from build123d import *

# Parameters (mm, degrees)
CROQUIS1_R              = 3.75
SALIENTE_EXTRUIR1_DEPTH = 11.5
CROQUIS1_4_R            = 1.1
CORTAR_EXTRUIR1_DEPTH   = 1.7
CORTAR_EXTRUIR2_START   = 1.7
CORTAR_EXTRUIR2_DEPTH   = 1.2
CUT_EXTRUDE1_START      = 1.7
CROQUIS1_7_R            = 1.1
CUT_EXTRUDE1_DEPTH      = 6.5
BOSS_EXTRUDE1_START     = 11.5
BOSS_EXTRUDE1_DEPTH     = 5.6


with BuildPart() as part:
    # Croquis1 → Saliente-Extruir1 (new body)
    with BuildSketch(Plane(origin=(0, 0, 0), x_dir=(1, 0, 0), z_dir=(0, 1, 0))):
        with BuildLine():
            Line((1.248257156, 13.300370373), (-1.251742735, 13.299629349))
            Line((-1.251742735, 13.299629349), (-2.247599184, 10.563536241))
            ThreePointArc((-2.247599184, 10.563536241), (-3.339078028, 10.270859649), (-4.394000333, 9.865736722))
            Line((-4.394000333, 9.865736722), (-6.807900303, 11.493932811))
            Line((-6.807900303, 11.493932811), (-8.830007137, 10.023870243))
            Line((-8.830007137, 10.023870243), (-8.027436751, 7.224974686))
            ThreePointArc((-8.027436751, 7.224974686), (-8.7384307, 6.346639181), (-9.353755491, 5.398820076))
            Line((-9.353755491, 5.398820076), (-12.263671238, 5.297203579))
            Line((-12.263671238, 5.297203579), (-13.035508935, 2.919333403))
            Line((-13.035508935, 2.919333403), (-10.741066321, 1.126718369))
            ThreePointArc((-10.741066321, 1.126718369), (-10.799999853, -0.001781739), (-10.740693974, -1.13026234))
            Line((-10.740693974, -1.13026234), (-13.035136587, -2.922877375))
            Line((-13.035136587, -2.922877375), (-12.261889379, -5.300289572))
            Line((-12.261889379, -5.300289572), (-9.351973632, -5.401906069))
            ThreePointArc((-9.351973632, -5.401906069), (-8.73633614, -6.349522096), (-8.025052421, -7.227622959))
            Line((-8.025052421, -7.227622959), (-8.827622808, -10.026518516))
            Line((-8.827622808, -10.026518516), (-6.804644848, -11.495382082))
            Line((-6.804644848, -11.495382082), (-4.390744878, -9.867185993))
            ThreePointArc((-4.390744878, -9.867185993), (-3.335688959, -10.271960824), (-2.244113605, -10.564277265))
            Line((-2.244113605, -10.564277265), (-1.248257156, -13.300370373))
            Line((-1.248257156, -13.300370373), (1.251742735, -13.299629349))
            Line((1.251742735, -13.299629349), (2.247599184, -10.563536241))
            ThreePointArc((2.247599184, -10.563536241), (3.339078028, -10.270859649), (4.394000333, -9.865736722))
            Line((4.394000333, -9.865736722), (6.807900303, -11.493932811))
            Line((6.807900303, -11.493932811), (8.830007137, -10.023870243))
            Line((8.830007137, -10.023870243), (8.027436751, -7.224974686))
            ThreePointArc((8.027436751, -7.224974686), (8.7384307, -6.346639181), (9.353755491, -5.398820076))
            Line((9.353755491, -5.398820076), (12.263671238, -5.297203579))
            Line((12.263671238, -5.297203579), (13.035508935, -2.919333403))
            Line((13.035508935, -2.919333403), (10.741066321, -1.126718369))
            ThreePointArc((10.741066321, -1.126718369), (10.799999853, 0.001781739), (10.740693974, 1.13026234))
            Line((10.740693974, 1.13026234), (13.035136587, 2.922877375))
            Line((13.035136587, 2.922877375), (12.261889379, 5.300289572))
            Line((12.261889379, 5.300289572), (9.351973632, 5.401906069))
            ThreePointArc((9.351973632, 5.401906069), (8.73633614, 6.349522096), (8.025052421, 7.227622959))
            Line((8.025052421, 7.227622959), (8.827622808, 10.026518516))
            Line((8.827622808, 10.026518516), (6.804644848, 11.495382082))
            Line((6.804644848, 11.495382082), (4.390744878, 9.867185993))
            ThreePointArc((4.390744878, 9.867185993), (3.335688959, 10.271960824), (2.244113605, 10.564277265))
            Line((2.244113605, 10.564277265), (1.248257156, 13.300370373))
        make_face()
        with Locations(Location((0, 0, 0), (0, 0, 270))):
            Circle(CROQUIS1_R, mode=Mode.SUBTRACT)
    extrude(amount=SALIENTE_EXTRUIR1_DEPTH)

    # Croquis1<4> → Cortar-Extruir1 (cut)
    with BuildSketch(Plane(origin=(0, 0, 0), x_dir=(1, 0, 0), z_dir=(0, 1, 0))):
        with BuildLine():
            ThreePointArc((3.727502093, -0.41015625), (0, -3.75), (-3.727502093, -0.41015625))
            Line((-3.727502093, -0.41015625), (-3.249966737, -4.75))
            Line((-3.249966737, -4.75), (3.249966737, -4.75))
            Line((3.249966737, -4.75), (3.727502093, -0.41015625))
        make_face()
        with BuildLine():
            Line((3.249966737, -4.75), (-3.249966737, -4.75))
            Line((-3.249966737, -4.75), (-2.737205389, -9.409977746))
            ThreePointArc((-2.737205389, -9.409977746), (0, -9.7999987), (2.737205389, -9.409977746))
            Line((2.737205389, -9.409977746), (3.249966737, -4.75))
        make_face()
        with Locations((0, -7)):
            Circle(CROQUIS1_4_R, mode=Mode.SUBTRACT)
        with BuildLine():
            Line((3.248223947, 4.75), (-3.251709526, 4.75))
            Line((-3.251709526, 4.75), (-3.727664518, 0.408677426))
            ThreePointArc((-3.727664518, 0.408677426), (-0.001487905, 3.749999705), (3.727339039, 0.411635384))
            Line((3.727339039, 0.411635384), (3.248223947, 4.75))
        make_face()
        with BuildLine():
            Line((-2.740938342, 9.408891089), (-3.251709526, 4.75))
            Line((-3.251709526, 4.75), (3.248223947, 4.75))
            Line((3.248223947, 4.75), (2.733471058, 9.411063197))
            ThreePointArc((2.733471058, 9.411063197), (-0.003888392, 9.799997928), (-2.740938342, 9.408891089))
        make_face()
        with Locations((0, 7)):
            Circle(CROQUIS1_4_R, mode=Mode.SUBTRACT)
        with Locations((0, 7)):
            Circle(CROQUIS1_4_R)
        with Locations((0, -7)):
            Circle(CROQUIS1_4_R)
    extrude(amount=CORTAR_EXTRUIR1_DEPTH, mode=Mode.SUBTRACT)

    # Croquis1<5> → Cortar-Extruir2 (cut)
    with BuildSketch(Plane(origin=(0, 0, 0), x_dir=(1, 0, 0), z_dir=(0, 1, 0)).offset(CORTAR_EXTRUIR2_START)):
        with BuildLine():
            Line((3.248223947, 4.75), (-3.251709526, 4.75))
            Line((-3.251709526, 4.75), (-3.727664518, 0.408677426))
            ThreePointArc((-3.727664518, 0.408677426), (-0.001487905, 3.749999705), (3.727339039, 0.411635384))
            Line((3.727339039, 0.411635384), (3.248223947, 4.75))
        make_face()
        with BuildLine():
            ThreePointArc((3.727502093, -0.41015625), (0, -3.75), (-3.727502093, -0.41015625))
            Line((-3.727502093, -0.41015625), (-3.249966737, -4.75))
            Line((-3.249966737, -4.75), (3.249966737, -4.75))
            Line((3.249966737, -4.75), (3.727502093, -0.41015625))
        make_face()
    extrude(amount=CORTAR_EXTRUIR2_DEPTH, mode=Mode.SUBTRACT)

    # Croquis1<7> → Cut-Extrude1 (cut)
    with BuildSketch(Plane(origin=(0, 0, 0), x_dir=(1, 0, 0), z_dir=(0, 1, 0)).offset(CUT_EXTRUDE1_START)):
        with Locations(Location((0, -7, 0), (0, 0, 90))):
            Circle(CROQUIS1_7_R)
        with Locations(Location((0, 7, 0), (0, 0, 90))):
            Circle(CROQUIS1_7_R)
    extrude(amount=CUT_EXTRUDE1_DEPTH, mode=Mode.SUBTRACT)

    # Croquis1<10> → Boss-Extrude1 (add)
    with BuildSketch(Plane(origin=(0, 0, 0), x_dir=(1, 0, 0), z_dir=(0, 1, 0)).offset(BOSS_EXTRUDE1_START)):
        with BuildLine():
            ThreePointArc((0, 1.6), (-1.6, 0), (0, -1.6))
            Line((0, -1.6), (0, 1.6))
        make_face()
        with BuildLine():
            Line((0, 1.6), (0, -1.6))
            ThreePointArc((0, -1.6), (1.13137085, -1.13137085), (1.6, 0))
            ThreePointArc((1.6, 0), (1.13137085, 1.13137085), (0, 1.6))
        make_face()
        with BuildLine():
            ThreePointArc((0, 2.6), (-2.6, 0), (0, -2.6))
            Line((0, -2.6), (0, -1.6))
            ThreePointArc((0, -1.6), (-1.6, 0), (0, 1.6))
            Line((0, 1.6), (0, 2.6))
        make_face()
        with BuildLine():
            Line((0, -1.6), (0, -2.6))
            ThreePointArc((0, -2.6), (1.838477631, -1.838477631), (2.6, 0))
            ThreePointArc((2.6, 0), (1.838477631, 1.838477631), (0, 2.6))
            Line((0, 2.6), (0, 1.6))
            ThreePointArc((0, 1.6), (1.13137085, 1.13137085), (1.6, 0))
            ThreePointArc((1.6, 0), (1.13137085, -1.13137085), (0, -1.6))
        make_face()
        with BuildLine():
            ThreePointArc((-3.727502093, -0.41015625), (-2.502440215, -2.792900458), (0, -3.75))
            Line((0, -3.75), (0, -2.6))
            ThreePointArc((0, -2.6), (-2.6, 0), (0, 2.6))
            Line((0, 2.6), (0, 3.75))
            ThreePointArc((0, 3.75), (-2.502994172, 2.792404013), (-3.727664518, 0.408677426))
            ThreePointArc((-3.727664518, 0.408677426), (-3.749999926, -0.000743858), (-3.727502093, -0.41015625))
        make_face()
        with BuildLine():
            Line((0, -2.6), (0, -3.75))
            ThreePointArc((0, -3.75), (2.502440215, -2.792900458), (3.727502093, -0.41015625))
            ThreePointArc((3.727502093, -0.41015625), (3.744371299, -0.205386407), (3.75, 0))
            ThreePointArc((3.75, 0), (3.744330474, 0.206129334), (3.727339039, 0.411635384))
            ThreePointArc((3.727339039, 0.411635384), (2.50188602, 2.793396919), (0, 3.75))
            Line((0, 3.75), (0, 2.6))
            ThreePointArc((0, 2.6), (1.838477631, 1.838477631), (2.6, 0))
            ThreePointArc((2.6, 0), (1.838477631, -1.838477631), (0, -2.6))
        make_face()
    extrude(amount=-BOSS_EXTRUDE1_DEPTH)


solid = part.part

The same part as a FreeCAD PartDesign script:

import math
import FreeCAD as App
import Part
import Sketcher
from FreeCAD import Vector
Q = App.Units.Quantity

doc = App.newDocument("Part")
params = doc.addObject("Spreadsheet::Sheet", "Params")
for row, (alias, value) in enumerate([
    ("sketch1_diameter", "7.5 mm"),
    ("sketch1_radius", "10.8 mm"),
    ("sketch1_length", "2.5 mm"),
    ("pad1_length", "11.5 mm"),
    ("sketch2_radius", "9.799999 mm"),
    ("sketch2_radius2", "3.75 mm"),
    ("pocket1_length", "1.7 mm"),
    ("sketch3_radius", "3.75 mm"),
    ("pocket2_length", "1.2 mm"),
    ("sketch4_diameter", "2.2 mm"),
    ("pocket3_length", "6.5 mm"),
    ("sketch5_radius", "3.75 mm"),
    ("pad2_length", "5.6 mm"),
], start=1):
    params.set(f"A{row}", alias)
    params.set(f"B{row}", "=" + value)
    params.setAlias(f"B{row}", alias)

body = doc.addObject("PartDesign::Body", "Body")

# Sketch on XZ plane
sketch1 = body.newObject("Sketcher::SketchObject", "Sketch")
sketch1.AttachmentSupport = (doc.getObject("XZ_Plane"), [""])
sketch1.MapMode = "FlatFace"
sketch1.addGeometry([
    Part.LineSegment(Vector(1.248257, -13.30037, 0), Vector(-1.251743, -13.299629, 0)),  # 0
    Part.LineSegment(Vector(-1.251743, -13.299629, 0), Vector(-2.247599, -10.563536, 0)),  # 1
    Part.ArcOfCircle(Part.Circle(Vector(0, 0, 0), Vector(0, 0, 1), 10.8), math.radians(-114.007228), math.radians(-102.011677)),  # 2
    Part.LineSegment(Vector(-4.394, -9.865737, 0), Vector(-6.8079, -11.493933, 0)),  # 3
    Part.LineSegment(Vector(-6.8079, -11.493933, 0), Vector(-8.830007, -10.02387, 0)),  # 4
    Part.LineSegment(Vector(-8.830007, -10.02387, 0), Vector(-8.027437, -7.224975, 0)),  # 5
    Part.ArcOfCircle(Part.Circle(Vector(0, 0, 0), Vector(0, 0, 1), 10.8), math.radians(-150.007228), math.radians(-138.011677)),  # 6
    Part.LineSegment(Vector(-9.353755, -5.39882, 0), Vector(-12.263671, -5.297204, 0)),  # 7
    Part.LineSegment(Vector(-12.263671, -5.297204, 0), Vector(-13.035509, -2.919333, 0)),  # 8
    Part.LineSegment(Vector(-13.035509, -2.919333, 0), Vector(-10.741066, -1.126718, 0)),  # 9
    Part.ArcOfCircle(Part.Circle(Vector(0, 0, 0), Vector(0, 0, 1), 10.8), math.radians(173.992772), math.radians(185.988323)),  # 10
    Part.LineSegment(Vector(-10.740694, 1.130262, 0), Vector(-13.035137, 2.922877, 0)),  # 11
    Part.LineSegment(Vector(-13.035137, 2.922877, 0), Vector(-12.261889, 5.30029, 0)),  # 12
    Part.LineSegment(Vector(-12.261889, 5.30029, 0), Vector(-9.351974, 5.401906, 0)),  # 13
    Part.ArcOfCircle(Part.Circle(Vector(0, 0, 0), Vector(0, 0, 1), 10.8), math.radians(137.992772), math.radians(149.988323)),  # 14
    Part.LineSegment(Vector(-8.025052, 7.227623, 0), Vector(-8.827623, 10.026519, 0)),  # 15
    Part.LineSegment(Vector(-8.827623, 10.026519, 0), Vector(-6.804645, 11.495382, 0)),  # 16
    Part.LineSegment(Vector(-6.804645, 11.495382, 0), Vector(-4.390745, 9.867186, 0)),  # 17
    Part.ArcOfCircle(Part.Circle(Vector(0, 0, 0), Vector(0, 0, 1), 10.8), math.radians(101.992772), math.radians(113.988323)),  # 18
    Part.LineSegment(Vector(-2.244114, 10.564277, 0), Vector(-1.248257, 13.30037, 0)),  # 19
    Part.LineSegment(Vector(-1.248257, 13.30037, 0), Vector(1.251743, 13.299629, 0)),  # 20
    Part.LineSegment(Vector(1.251743, 13.299629, 0), Vector(2.247599, 10.563536, 0)),  # 21
    Part.ArcOfCircle(Part.Circle(Vector(0, 0, 0), Vector(0, 0, 1), 10.8), math.radians(65.992772), math.radians(77.988323)),  # 22
    Part.LineSegment(Vector(4.394, 9.865737, 0), Vector(6.8079, 11.493933, 0)),  # 23
    Part.LineSegment(Vector(6.8079, 11.493933, 0), Vector(8.830007, 10.02387, 0)),  # 24
    Part.LineSegment(Vector(8.830007, 10.02387, 0), Vector(8.027437, 7.224975, 0)),  # 25
    Part.ArcOfCircle(Part.Circle(Vector(0, 0, 0), Vector(0, 0, 1), 10.8), math.radians(29.992772), math.radians(41.988323)),  # 26
    Part.LineSegment(Vector(9.353755, 5.39882, 0), Vector(12.263671, 5.297204, 0)),  # 27
    Part.LineSegment(Vector(12.263671, 5.297204, 0), Vector(13.035509, 2.919333, 0)),  # 28
    Part.LineSegment(Vector(13.035509, 2.919333, 0), Vector(10.741066, 1.126718, 0)),  # 29
    Part.ArcOfCircle(Part.Circle(Vector(0, 0, 0), Vector(0, 0, 1), 10.8), math.radians(-6.007228), math.radians(5.988323)),  # 30
    Part.LineSegment(Vector(10.740694, -1.130262, 0), Vector(13.035137, -2.922877, 0)),  # 31
    Part.LineSegment(Vector(13.035137, -2.922877, 0), Vector(12.261889, -5.30029, 0)),  # 32
    Part.LineSegment(Vector(12.261889, -5.30029, 0), Vector(9.351974, -5.401906, 0)),  # 33
    Part.ArcOfCircle(Part.Circle(Vector(0, 0, 0), Vector(0, 0, 1), 10.8), math.radians(-42.007228), math.radians(-30.011677)),  # 34
    Part.LineSegment(Vector(8.025052, -7.227623, 0), Vector(8.827623, -10.026519, 0)),  # 35
    Part.LineSegment(Vector(8.827623, -10.026519, 0), Vector(6.804645, -11.495382, 0)),  # 36
    Part.LineSegment(Vector(6.804645, -11.495382, 0), Vector(4.390745, -9.867186, 0)),  # 37
    Part.ArcOfCircle(Part.Circle(Vector(0, 0, 0), Vector(0, 0, 1), 10.8), math.radians(-78.007228), math.radians(-66.011677)),  # 38
    Part.LineSegment(Vector(2.244114, -10.564277, 0), Vector(1.248257, -13.30037, 0)),  # 39
    Part.Circle(Vector(0, 0, 0), Vector(0, 0, 1), 3.75),  # 40
], False)
sketch1.addConstraint([
    Sketcher.Constraint("Coincident", 0, 2, 1, 1),
    Sketcher.Constraint("Coincident", 1, 2, 2, 2),
    Sketcher.Constraint("Coincident", 2, 1, 3, 1),
    Sketcher.Constraint("Coincident", 3, 2, 4, 1),
    Sketcher.Constraint("Coincident", 4, 2, 5, 1),
    Sketcher.Constraint("Coincident", 5, 2, 6, 2),
    Sketcher.Constraint("Coincident", 6, 1, 7, 1),
    Sketcher.Constraint("Coincident", 7, 2, 8, 1),
    Sketcher.Constraint("Coincident", 8, 2, 9, 1),
    Sketcher.Constraint("Coincident", 9, 2, 10, 2),
    Sketcher.Constraint("Coincident", 10, 1, 11, 1),
    Sketcher.Constraint("Coincident", 11, 2, 12, 1),
    Sketcher.Constraint("Coincident", 12, 2, 13, 1),
    Sketcher.Constraint("Coincident", 13, 2, 14, 2),
    Sketcher.Constraint("Coincident", 14, 1, 15, 1),
    Sketcher.Constraint("Coincident", 15, 2, 16, 1),
    Sketcher.Constraint("Coincident", 16, 2, 17, 1),
    Sketcher.Constraint("Coincident", 17, 2, 18, 2),
    Sketcher.Constraint("Coincident", 18, 1, 19, 1),
    Sketcher.Constraint("Coincident", 19, 2, 20, 1),
    Sketcher.Constraint("Coincident", 20, 2, 21, 1),
    Sketcher.Constraint("Coincident", 21, 2, 22, 2),
    Sketcher.Constraint("Coincident", 22, 1, 23, 1),
    Sketcher.Constraint("Coincident", 23, 2, 24, 1),
    Sketcher.Constraint("Coincident", 24, 2, 25, 1),
    Sketcher.Constraint("Coincident", 25, 2, 26, 2),
    Sketcher.Constraint("Coincident", 26, 1, 27, 1),
    Sketcher.Constraint("Coincident", 27, 2, 28, 1),
    Sketcher.Constraint("Coincident", 28, 2, 29, 1),
    Sketcher.Constraint("Coincident", 29, 2, 30, 2),
    Sketcher.Constraint("Coincident", 30, 1, 31, 1),
    Sketcher.Constraint("Coincident", 31, 2, 32, 1),
    Sketcher.Constraint("Coincident", 32, 2, 33, 1),
    Sketcher.Constraint("Coincident", 33, 2, 34, 2),
    Sketcher.Constraint("Coincident", 34, 1, 35, 1),
    Sketcher.Constraint("Coincident", 35, 2, 36, 1),
    Sketcher.Constraint("Coincident", 36, 2, 37, 1),
    Sketcher.Constraint("Coincident", 37, 2, 38, 2),
    Sketcher.Constraint("Coincident", 38, 1, 39, 1),
    Sketcher.Constraint("Coincident", 39, 2, 0, 1),
    Sketcher.Constraint("Coincident", 2, 3, -1, 1),
    Sketcher.Constraint("Coincident", 6, 3, -1, 1),
    Sketcher.Constraint("Coincident", 10, 3, -1, 1),
    Sketcher.Constraint("Coincident", 14, 3, -1, 1),
    Sketcher.Constraint("Coincident", 18, 3, -1, 1),
    Sketcher.Constraint("Coincident", 22, 3, -1, 1),
    Sketcher.Constraint("Coincident", 26, 3, -1, 1),
    Sketcher.Constraint("Coincident", 30, 3, -1, 1),
    Sketcher.Constraint("Coincident", 34, 3, -1, 1),
    Sketcher.Constraint("Coincident", 38, 3, -1, 1),
    Sketcher.Constraint("Coincident", 40, 3, -1, 1),
    Sketcher.Constraint("Equal", 2, 6),
    Sketcher.Constraint("Equal", 6, 10),
    Sketcher.Constraint("Equal", 10, 14),
    Sketcher.Constraint("Equal", 14, 18),
    Sketcher.Constraint("Equal", 18, 22),
    Sketcher.Constraint("Equal", 22, 26),
    Sketcher.Constraint("Equal", 26, 30),
    Sketcher.Constraint("Equal", 30, 34),
    Sketcher.Constraint("Equal", 34, 38),
    Sketcher.Constraint("Symmetric", 0, 2, 20, 2, -1, 1),
    Sketcher.Constraint("Symmetric", 3, 2, 23, 2, -1, 1),
    Sketcher.Constraint("Symmetric", 4, 2, 24, 2, -1, 1),
    Sketcher.Constraint("Symmetric", 7, 2, 27, 2, -1, 1),
    Sketcher.Constraint("Symmetric", 8, 2, 28, 2, -1, 1),
    Sketcher.Constraint("Symmetric", 11, 2, 31, 2, -1, 1),
    Sketcher.Constraint("Symmetric", 12, 2, 32, 2, -1, 1),
    Sketcher.Constraint("Symmetric", 15, 2, 35, 2, -1, 1),
    Sketcher.Constraint("Symmetric", 16, 2, 36, 2, -1, 1),
    Sketcher.Constraint("Symmetric", 19, 2, 39, 2, -1, 1),
    Sketcher.Constraint("Parallel", 1, 21),
    Sketcher.Constraint("Parallel", 3, 23),
    Sketcher.Constraint("Parallel", 5, 25),
    Sketcher.Constraint("Parallel", 7, 27),
    Sketcher.Constraint("Parallel", 9, 29),
    Sketcher.Constraint("Parallel", 11, 31),
    Sketcher.Constraint("Parallel", 13, 33),
    Sketcher.Constraint("Parallel", 15, 35),
    Sketcher.Constraint("Parallel", 17, 37),
    Sketcher.Constraint("Parallel", 19, 39),
    Sketcher.Constraint("Equal", 1, 3),
    Sketcher.Constraint("Equal", 0, 4),
    Sketcher.Constraint("Equal", 3, 5),
    Sketcher.Constraint("Equal", 5, 7),
    Sketcher.Constraint("Equal", 4, 8),
    Sketcher.Constraint("Equal", 7, 9),
    Sketcher.Constraint("Equal", 9, 11),
    Sketcher.Constraint("Equal", 8, 12),
    Sketcher.Constraint("Equal", 11, 13),
    Sketcher.Constraint("Equal", 13, 15),
    Sketcher.Constraint("Equal", 12, 16),
    Sketcher.Constraint("Equal", 15, 17),
    Sketcher.Constraint("Equal", 17, 19),
    Sketcher.Constraint("Diameter", 40, 7.5),
    Sketcher.Constraint("Radius", 2, 10.8),
    Sketcher.Constraint("Angle", 1, Q("110 deg")),
    Sketcher.Constraint("Angle", 3, Q("-146 deg")),
    Sketcher.Constraint("Angle", 5, Q("74 deg")),
    Sketcher.Constraint("Angle", 7, Q("178 deg")),
    Sketcher.Constraint("Angle", 9, Q("38 deg")),
    Sketcher.Constraint("Angle", 11, Q("142 deg")),
    Sketcher.Constraint("Angle", 13, Q("2 deg")),
    Sketcher.Constraint("Angle", 15, Q("106 deg")),
    Sketcher.Constraint("Angle", 17, Q("-34 deg")),
    Sketcher.Constraint("Angle", 19, Q("70 deg")),
    Sketcher.Constraint("Distance", 0, 2.5),
    Sketcher.Constraint("DistanceX", 2, 1, -1, 1, 4.394),
    Sketcher.Constraint("DistanceX", 1, 2, -1, 1, 2.247599),
    Sketcher.Constraint("DistanceX", 3, 2, -1, 1, 6.8079),
    Sketcher.Constraint("DistanceX", 8, 2, 4, 2, 4.205502),
    Sketcher.Constraint("DistanceX", 12, 2, -1, 1, 12.261889),
    Sketcher.Constraint("DistanceY", -1, 1, 15, 2, 10.026519),
])
sketch1.setExpression("Constraints[93]", "Params.sketch1_diameter")
sketch1.setExpression("Constraints[94]", "Params.sketch1_radius")
sketch1.setExpression("Constraints[105]", "Params.sketch1_length")
pad1 = body.newObject("PartDesign::Pad", "Pad")
pad1.Profile = sketch1
pad1.setExpression("Length", "Params.pad1_length")
pad1.Reversed = True

# Sketch on XZ plane
sketch2 = body.newObject("Sketcher::SketchObject", "Sketch001")
sketch2.AttachmentSupport = (doc.getObject("XZ_Plane"), [""])
sketch2.MapMode = "FlatFace"
sketch2.addGeometry([
    Part.ArcOfCircle(Part.Circle(Vector(0, 0, 0), Vector(0, 0, 1), 3.75), math.radians(6.279288), math.radians(173.720712)),  # 0
    Part.LineSegment(Vector(-3.727502, 0.410156, 0), Vector(-3.249967, 4.75, 0)),  # 1
    Part.LineSegment(Vector(-3.249967, 4.75, 0), Vector(-2.737205, 9.409978, 0)),  # 2
    Part.ArcOfCircle(Part.Circle(Vector(0, 0, 0), Vector(0, 0, 1), 9.799999), math.radians(73.781169), math.radians(106.218831)),  # 3
    Part.LineSegment(Vector(2.737205, 9.409978, 0), Vector(3.249967, 4.75, 0)),  # 4
    Part.LineSegment(Vector(3.249967, 4.75, 0), Vector(3.727502, 0.410156, 0)),  # 5
    Part.LineSegment(Vector(-3.25171, -4.75, 0), Vector(-3.727665, -0.408677, 0)),  # 6
    Part.ArcOfCircle(Part.Circle(Vector(0, 0, 0), Vector(0, 0, 1), 3.75), math.radians(-173.743442), math.radians(-6.302025)),  # 7
    Part.LineSegment(Vector(3.727339, -0.411635, 0), Vector(3.248224, -4.75, 0)),  # 8
    Part.LineSegment(Vector(3.248224, -4.75, 0), Vector(2.733471, -9.411063, 0)),  # 9
    Part.ArcOfCircle(Part.Circle(Vector(0, 0, 0), Vector(0, 0, 1), 9.799999), math.radians(-106.241562), math.radians(-73.803905)),  # 10
    Part.LineSegment(Vector(-2.740938, -9.408891, 0), Vector(-3.25171, -4.75, 0)),  # 11
], False)
sketch2.addConstraint([
    Sketcher.Constraint("Tangent", 0, 2, 1, 1),
    Sketcher.Constraint("Coincident", 1, 2, 2, 1),
    Sketcher.Constraint("Coincident", 2, 2, 3, 2),
    Sketcher.Constraint("Coincident", 3, 1, 4, 1),
    Sketcher.Constraint("Coincident", 4, 2, 5, 1),
    Sketcher.Constraint("Tangent", 5, 2, 0, 1),
    Sketcher.Constraint("Tangent", 6, 2, 7, 1),
    Sketcher.Constraint("Tangent", 7, 2, 8, 1),
    Sketcher.Constraint("Coincident", 8, 2, 9, 1),
    Sketcher.Constraint("Coincident", 9, 2, 10, 2),
    Sketcher.Constraint("Coincident", 10, 1, 11, 1),
    Sketcher.Constraint("Coincident", 11, 2, 6, 1),
    Sketcher.Constraint("Coincident", 0, 3, -1, 1),
    Sketcher.Constraint("Coincident", 3, 3, -1, 1),
    Sketcher.Constraint("Coincident", 7, 3, -1, 1),
    Sketcher.Constraint("Coincident", 10, 3, -1, 1),
    Sketcher.Constraint("Equal", 0, 7),
    Sketcher.Constraint("Equal", 3, 10),
    Sketcher.Constraint("Symmetric", 1, 2, 4, 2, -2),
    Sketcher.Constraint("Parallel", 1, 2),
    Sketcher.Constraint("Parallel", 4, 5),
    Sketcher.Constraint("Parallel", 8, 9),
    Sketcher.Constraint("Parallel", 6, 11),
    Sketcher.Constraint("Horizontal", 8, 2, 11, 2),
    Sketcher.Constraint("Radius", 3, 9.799999),
    Sketcher.Constraint("Radius", 0, 3.75),
    Sketcher.Constraint("DistanceY", -1, 1, 1, 2, 4.75),
    Sketcher.Constraint("DistanceY", 8, 2, -1, 1, 4.75),
    Sketcher.Constraint("Distance", 9, 4.689401),
    Sketcher.Constraint("DistanceX", 10, 1, -1, 1, 2.740938),
    Sketcher.Constraint("DistanceX", 1, 2, 2, 2, 0.512761),
])
sketch2.setExpression("Constraints[24]", "Params.sketch2_radius")
sketch2.setExpression("Constraints[25]", "Params.sketch2_radius2")
pocket1 = body.newObject("PartDesign::Pocket", "Pocket")
pocket1.Profile = sketch2
pocket1.setExpression("Length", "Params.pocket1_length")

# Sketch on XZ plane
sketch3 = body.newObject("Sketcher::SketchObject", "Sketch002")
sketch3.AttachmentSupport = (doc.getObject("XZ_Plane"), [""])
sketch3.MapMode = "FlatFace"
sketch3.AttachmentOffset = App.Placement(Vector(0, 0, -1.7), App.Rotation())
sketch3.addGeometry([
    Part.LineSegment(Vector(3.248224, -4.75, 0), Vector(-3.25171, -4.75, 0)),  # 0
    Part.LineSegment(Vector(-3.25171, -4.75, 0), Vector(-3.727665, -0.408677, 0)),  # 1
    Part.ArcOfCircle(Part.Circle(Vector(0, 0, 0), Vector(0, 0, 1), 3.75), math.radians(-173.743442), math.radians(-6.302025)),  # 2
    Part.LineSegment(Vector(3.727339, -0.411635, 0), Vector(3.248224, -4.75, 0)),  # 3
    Part.ArcOfCircle(Part.Circle(Vector(0, 0, 0), Vector(0, 0, 1), 3.75), math.radians(6.279288), math.radians(173.720712)),  # 4
    Part.LineSegment(Vector(-3.727502, 0.410156, 0), Vector(-3.249967, 4.75, 0)),  # 5
    Part.LineSegment(Vector(-3.249967, 4.75, 0), Vector(3.249967, 4.75, 0)),  # 6
    Part.LineSegment(Vector(3.249967, 4.75, 0), Vector(3.727502, 0.410156, 0)),  # 7
], False)
sketch3.addConstraint([
    Sketcher.Constraint("Coincident", 0, 2, 1, 1),
    Sketcher.Constraint("Tangent", 1, 2, 2, 1),
    Sketcher.Constraint("Tangent", 2, 2, 3, 1),
    Sketcher.Constraint("Coincident", 3, 2, 0, 1),
    Sketcher.Constraint("Tangent", 4, 2, 5, 1),
    Sketcher.Constraint("Coincident", 5, 2, 6, 1),
    Sketcher.Constraint("Coincident", 6, 2, 7, 1),
    Sketcher.Constraint("Tangent", 7, 2, 4, 1),
    Sketcher.Constraint("Horizontal", 0),
    Sketcher.Constraint("Horizontal", 6),
    Sketcher.Constraint("Coincident", 2, 3, -1, 1),
    Sketcher.Constraint("Coincident", 4, 3, -1, 1),
    Sketcher.Constraint("Equal", 2, 4),
    Sketcher.Constraint("Horizontal", 4, 2, 7, 2),
    Sketcher.Constraint("Equal", 0, 6),
    Sketcher.Constraint("Radius", 2, 3.75),
    Sketcher.Constraint("DistanceY", 0, 2, -1, 1, 4.75),
    Sketcher.Constraint("DistanceY", -1, 1, 5, 2, 4.75),
    Sketcher.Constraint("Distance", 3, 4.36474),
    Sketcher.Constraint("DistanceX", 0, 2, 0, 1, 6.499933),
])
sketch3.setExpression("Constraints[15]", "Params.sketch3_radius")
pocket2 = body.newObject("PartDesign::Pocket", "Pocket001")
pocket2.Profile = sketch3
pocket2.setExpression("Length", "Params.pocket2_length")

# Sketch on XZ plane
sketch4 = body.newObject("Sketcher::SketchObject", "Sketch003")
sketch4.AttachmentSupport = (doc.getObject("XZ_Plane"), [""])
sketch4.MapMode = "FlatFace"
sketch4.AttachmentOffset = App.Placement(Vector(0, 0, -1.7), App.Rotation())
sketch4.addGeometry([
    Part.Circle(Vector(0, 7, 0), Vector(0, 0, 1), 1.1),
    Part.Circle(Vector(0, -7, 0), Vector(0, 0, 1), 1.1),
], False)
sketch4.addConstraint([
    Sketcher.Constraint("Equal", 0, 1),
    Sketcher.Constraint("Symmetric", 0, 3, 1, 3, -1, 1),
    Sketcher.Constraint("PointOnObject", 0, 3, -2),
    Sketcher.Constraint("Diameter", 0, 2.2),
    Sketcher.Constraint("DistanceY", -1, 1, 0, 3, 7.0),
])
sketch4.setExpression("Constraints[3]", "Params.sketch4_diameter")
pocket3 = body.newObject("PartDesign::Pocket", "Pocket002")
pocket3.Profile = sketch4
pocket3.setExpression("Length", "Params.pocket3_length")

# Sketch on XZ plane
sketch5 = body.newObject("Sketcher::SketchObject", "Sketch004")
sketch5.AttachmentSupport = (doc.getObject("XZ_Plane"), [""])
sketch5.MapMode = "FlatFace"
sketch5.AttachmentOffset = App.Placement(Vector(0, 0, -11.5), App.Rotation())
sketch5.addGeometry([
    Part.ArcOfCircle(Part.Circle(Vector(0, 0, 0), Vector(0, 0, 1), 3.75), math.radians(173.720712), math.radians(186.256558)),  # 0
    Part.ArcOfCircle(Part.Circle(Vector(0, 0, 0), Vector(0, 0, 1), 3.75), math.radians(90), math.radians(173.720712)),  # 1
    Part.ArcOfCircle(Part.Circle(Vector(0, 0, 0), Vector(0, 0, 1), 3.75), math.radians(6.279288), math.radians(90)),  # 2
    Part.ArcOfCircle(Part.Circle(Vector(0, 0, 0), Vector(0, 0, 1), 3.75), math.radians(0), math.radians(6.279288)),  # 3
    Part.ArcOfCircle(Part.Circle(Vector(0, 0, 0), Vector(0, 0, 1), 3.75), math.radians(-6.302025), math.radians(0)),  # 4
    Part.ArcOfCircle(Part.Circle(Vector(0, 0, 0), Vector(0, 0, 1), 3.75), math.radians(-90), math.radians(-6.302025)),  # 5
    Part.ArcOfCircle(Part.Circle(Vector(0, 0, 0), Vector(0, 0, 1), 3.75), math.radians(-173.743442), math.radians(-90)),  # 6
], False)
sketch5.addConstraint([
    Sketcher.Constraint("Tangent", 0, 1, 1, 2),
    Sketcher.Constraint("Tangent", 1, 1, 2, 2),
    Sketcher.Constraint("Tangent", 2, 1, 3, 2),
    Sketcher.Constraint("Tangent", 3, 1, 4, 2),
    Sketcher.Constraint("Tangent", 4, 1, 5, 2),
    Sketcher.Constraint("Tangent", 5, 1, 6, 2),
    Sketcher.Constraint("Tangent", 6, 1, 0, 2),
    Sketcher.Constraint("Coincident", 0, 3, -1, 1),
    Sketcher.Constraint("Coincident", 2, 3, -1, 1),
    Sketcher.Constraint("Coincident", 4, 3, -1, 1),
    Sketcher.Constraint("PointOnObject", 1, 1, -2),
    Sketcher.Constraint("PointOnObject", 3, 1, -1),
    Sketcher.Constraint("PointOnObject", 5, 1, -2),
    Sketcher.Constraint("Horizontal", 0, 1, 2, 1),
    Sketcher.Constraint("Radius", 0, 3.75),
    Sketcher.Constraint("DistanceX", -1, 1, 4, 1, 3.727339),
    Sketcher.Constraint("DistanceY", 4, 1, 2, 1, 0.821792),
    Sketcher.Constraint("DistanceX", 6, 1, -1, 1, 3.727665),
])
sketch5.setExpression("Constraints[14]", "Params.sketch5_radius")
pad2 = body.newObject("PartDesign::Pad", "Pad001")
pad2.Profile = sketch5
pad2.setExpression("Length", "Params.pad2_length")

doc.recompute()
